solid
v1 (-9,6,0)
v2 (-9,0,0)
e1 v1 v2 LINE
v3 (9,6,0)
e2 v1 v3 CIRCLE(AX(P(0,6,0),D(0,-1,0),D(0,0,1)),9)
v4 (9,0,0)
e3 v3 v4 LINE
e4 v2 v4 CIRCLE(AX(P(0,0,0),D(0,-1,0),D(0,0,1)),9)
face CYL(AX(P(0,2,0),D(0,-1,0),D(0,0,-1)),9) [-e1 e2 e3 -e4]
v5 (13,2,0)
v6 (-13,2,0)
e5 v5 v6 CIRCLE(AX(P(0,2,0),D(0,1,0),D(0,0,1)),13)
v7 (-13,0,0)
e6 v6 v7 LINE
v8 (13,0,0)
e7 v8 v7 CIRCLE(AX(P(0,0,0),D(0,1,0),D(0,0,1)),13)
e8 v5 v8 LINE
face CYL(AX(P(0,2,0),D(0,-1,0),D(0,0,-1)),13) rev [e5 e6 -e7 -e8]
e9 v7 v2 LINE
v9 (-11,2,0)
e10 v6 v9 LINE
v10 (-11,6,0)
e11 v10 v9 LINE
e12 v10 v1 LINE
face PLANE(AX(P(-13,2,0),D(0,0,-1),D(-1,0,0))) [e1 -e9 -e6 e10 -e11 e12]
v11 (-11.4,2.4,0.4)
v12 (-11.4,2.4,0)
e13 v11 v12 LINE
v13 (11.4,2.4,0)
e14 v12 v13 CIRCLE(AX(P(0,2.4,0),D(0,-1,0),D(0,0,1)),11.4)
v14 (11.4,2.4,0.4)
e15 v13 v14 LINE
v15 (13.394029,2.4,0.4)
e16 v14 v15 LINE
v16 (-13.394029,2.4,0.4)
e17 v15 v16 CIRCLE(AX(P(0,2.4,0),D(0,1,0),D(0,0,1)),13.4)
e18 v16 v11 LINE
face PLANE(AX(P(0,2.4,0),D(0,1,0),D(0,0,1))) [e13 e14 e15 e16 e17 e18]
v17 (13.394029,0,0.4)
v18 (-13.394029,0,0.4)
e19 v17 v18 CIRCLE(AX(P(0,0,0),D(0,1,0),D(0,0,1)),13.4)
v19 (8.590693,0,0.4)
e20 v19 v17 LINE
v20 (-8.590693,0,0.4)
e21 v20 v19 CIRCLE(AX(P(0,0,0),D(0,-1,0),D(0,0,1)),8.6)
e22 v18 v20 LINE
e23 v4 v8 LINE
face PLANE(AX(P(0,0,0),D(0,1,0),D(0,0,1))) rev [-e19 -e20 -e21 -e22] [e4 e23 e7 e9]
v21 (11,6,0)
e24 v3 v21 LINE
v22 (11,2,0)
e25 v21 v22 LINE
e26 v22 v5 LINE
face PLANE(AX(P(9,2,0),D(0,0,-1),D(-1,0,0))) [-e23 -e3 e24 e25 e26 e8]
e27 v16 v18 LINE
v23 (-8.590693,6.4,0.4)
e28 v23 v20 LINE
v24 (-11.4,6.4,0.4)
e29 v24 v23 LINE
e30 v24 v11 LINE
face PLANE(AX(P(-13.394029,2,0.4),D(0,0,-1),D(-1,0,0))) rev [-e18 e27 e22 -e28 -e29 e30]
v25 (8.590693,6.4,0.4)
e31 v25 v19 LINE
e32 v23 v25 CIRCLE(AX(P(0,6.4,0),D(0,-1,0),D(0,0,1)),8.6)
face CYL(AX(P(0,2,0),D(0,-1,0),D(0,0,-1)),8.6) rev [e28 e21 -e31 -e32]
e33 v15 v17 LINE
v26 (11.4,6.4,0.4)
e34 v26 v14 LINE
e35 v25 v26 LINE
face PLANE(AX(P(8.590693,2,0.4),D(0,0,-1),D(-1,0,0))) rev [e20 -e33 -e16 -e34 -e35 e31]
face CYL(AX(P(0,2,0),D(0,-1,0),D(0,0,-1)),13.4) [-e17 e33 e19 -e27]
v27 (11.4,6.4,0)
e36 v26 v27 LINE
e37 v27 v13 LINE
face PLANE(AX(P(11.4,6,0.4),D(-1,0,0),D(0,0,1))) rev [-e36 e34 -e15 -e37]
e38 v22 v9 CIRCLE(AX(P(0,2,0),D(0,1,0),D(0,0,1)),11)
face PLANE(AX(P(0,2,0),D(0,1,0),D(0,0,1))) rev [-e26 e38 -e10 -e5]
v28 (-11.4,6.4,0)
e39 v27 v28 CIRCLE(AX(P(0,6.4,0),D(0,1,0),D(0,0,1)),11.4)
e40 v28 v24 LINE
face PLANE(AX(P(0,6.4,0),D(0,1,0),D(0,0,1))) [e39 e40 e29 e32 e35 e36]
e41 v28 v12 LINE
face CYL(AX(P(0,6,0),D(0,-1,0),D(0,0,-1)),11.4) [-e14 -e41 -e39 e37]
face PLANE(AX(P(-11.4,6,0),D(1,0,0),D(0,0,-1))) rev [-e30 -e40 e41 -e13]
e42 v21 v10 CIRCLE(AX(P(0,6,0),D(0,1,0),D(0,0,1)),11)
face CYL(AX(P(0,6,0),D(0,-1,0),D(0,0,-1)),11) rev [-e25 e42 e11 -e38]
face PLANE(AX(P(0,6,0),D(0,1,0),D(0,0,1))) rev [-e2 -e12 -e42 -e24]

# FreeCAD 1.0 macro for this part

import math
import FreeCAD as App
import Part
import Sketcher
from FreeCAD import Vector
Q = App.Units.Quantity

doc = App.newDocument("Part")
params = doc.addObject("Spreadsheet::Sheet", "Params")
for row, (alias, value) in enumerate([
    ("sketch1_radius", "9 mm"),
    ("sketch1_radius2", "13 mm"),
    ("sketch1_radius3", "8.6 mm"),
    ("sketch1_radius4", "13.4 mm"),
    ("pad1_length", "2 mm"),
    ("sketch2_radius", "11 mm"),
    ("sketch2_radius2", "9 mm"),
    ("sketch2_radius3", "8.6 mm"),
    ("sketch2_radius4", "11.4 mm"),
    ("sketch2_height", "0.4 mm"),
    ("pad2_length", "4 mm"),
    ("sketch3_radius", "11.4 mm"),
    ("sketch3_radius2", "13.4 mm"),
    ("sketch3_height", "0.4 mm"),
    ("pad3_length", "0.4 mm"),
    ("sketch4_radius", "11.4 mm"),
    ("sketch4_radius2", "8.6 mm"),
    ("sketch4_height", "0.4 mm"),
    ("pad4_length", "0.4 mm"),
], start=1):
    params.set(f"A{row}", alias)
    params.set(f"B{row}", "=" + value)
    params.setAlias(f"B{row}", alias)

body = doc.addObject("PartDesign::Body", "Body")

sketch1 = body.newObject("Sketcher::SketchObject", "Sketch")
sketch1.AttachmentSupport = (doc.getObject("XZ_Plane"), [""])
sketch1.MapMode = "FlatFace"
sketch1.addGeometry(Part.LineSegment(Vector(-13.4, 0.4, 0), Vector(-8.6, 0.4, 0)), False)
sketch1.addGeometry(Part.ArcOfCircle(Part.Circle(Vector(0, 0, 0), Vector(0, 0, 1), 8.6), math.radians(177), math.radians(363)), False)
sketch1.addGeometry(Part.LineSegment(Vector(8.6, 0.4, 0), Vector(13.4, 0.4, 0)), False)
sketch1.addGeometry(Part.ArcOfCircle(Part.Circle(Vector(0, 0, 0), Vector(0, 0, 1), 13.4), math.radians(178), math.radians(362)), False)
sketch1.addGeometry(Part.LineSegment(Vector(13, 0, 0), Vector(9, 0, 0)), False)
sketch1.addGeometry(Part.ArcOfCircle(Part.Circle(Vector(0, 0, 0), Vector(0, 0, 1), 9), math.radians(180), math.radians(360)), False)
sketch1.addGeometry(Part.LineSegment(Vector(-9, 0, 0), Vector(-13, 0, 0)), False)
sketch1.addGeometry(Part.ArcOfCircle(Part.Circle(Vector(0, 0, 0), Vector(0, 0, 1), 13), math.radians(180), math.radians(360)), False)
sketch1.addConstraint(Sketcher.Constraint("Coincident", 0, 2, 1, 1))
sketch1.addConstraint(Sketcher.Constraint("Coincident", 1, 2, 2, 1))
sketch1.addConstraint(Sketcher.Constraint("Coincident", 2, 2, 3, 2))
sketch1.addConstraint(Sketcher.Constraint("Coincident", 3, 1, 0, 1))
sketch1.addConstraint(Sketcher.Constraint("Coincident", 4, 2, 5, 2))
sketch1.addConstraint(Sketcher.Constraint("Coincident", 5, 1, 6, 1))
sketch1.addConstraint(Sketcher.Constraint("Coincident", 6, 2, 7, 1))
sketch1.addConstraint(Sketcher.Constraint("Coincident", 7, 2, 4, 1))
sketch1.addConstraint(Sketcher.Constraint("Horizontal", 0))
sketch1.addConstraint(Sketcher.Constraint("Horizontal", 2))
sketch1.addConstraint(Sketcher.Constraint("Horizontal", 4))
sketch1.addConstraint(Sketcher.Constraint("Horizontal", 6))
sketch1.addConstraint(Sketcher.Constraint("Coincident", 1, 3, -1, 1))
sketch1.addConstraint(Sketcher.Constraint("Coincident", 3, 3, -1, 1))
sketch1.addConstraint(Sketcher.Constraint("Coincident", 5, 3, -1, 1))
sketch1.addConstraint(Sketcher.Constraint("Coincident", 7, 3, -1, 1))
sketch1.addConstraint(Sketcher.Constraint("PointOnObject", 4, 2, -1))
sketch1.addConstraint(Sketcher.Constraint("PointOnObject", 5, 1, -1))
sketch1.addConstraint(Sketcher.Constraint("Horizontal", 0, 2, 1, 2))
sketch1.addConstraint(Sketcher.Constraint("Radius", 5, Q("9 mm")))
sketch1.addConstraint(Sketcher.Constraint("Radius", 7, Q("13 mm")))
sketch1.addConstraint(Sketcher.Constraint("Radius", 1, Q("8.6 mm")))
sketch1.addConstraint(Sketcher.Constraint("Radius", 3, Q("13.4 mm")))
sketch1.addConstraint(Sketcher.Constraint("DistanceY", -1, 1, 0, 2, Q("0.4 mm")))
sketch1.setExpression("Constraints[19]", "Params.sketch1_radius")
sketch1.setExpression("Constraints[20]", "Params.sketch1_radius2")
sketch1.setExpression("Constraints[21]", "Params.sketch1_radius3")
sketch1.setExpression("Constraints[22]", "Params.sketch1_radius4")
pad1 = body.newObject("PartDesign::Pad", "Pad")
pad1.Profile = sketch1
pad1.setExpression("Length", "Params.pad1_length")
pad1.Reversed = True

sketch2 = body.newObject("Sketcher::SketchObject", "Sketch001")
sketch2.AttachmentSupport = (doc.getObject("XZ_Plane"), [""])
sketch2.MapMode = "FlatFace"
sketch2.AttachmentOffset = App.Placement(Vector(0, 0, -2), App.Rotation())
sketch2.addGeometry(Part.LineSegment(Vector(-11.4, 0, 0), Vector(-11.4, 0.4, 0)), False)
sketch2.addGeometry(Part.LineSegment(Vector(-11.4, 0.4, 0), Vector(-8.59, 0.4, 0)), False)
sketch2.addGeometry(Part.ArcOfCircle(Part.Circle(Vector(0, 0, 0), Vector(0, 0, 1), 8.6), math.radians(177), math.radians(363)), False)
sketch2.addGeometry(Part.LineSegment(Vector(8.59, 0.4, 0), Vector(11.4, 0.4, 0)), False)
sketch2.addGeometry(Part.LineSegment(Vector(11.4, 0.4, 0), Vector(11.4, 0, 0)), False)
sketch2.addGeometry(Part.ArcOfCircle(Part.Circle(Vector(0, 0, 0), Vector(0, 0, 1), 11.4), math.radians(180), math.radians(360)), False)
sketch2.addGeometry(Part.LineSegment(Vector(-9, 0, 0), Vector(-11, 0, 0)), False)
sketch2.addGeometry(Part.ArcOfCircle(Part.Circle(Vector(0, 0, 0), Vector(0, 0, 1), 11), math.radians(180), math.radians(360)), False)
sketch2.addGeometry(Part.LineSegment(Vector(11, 0, 0), Vector(9, 0, 0)), False)
sketch2.addGeometry(Part.ArcOfCircle(Part.Circle(Vector(0, 0, 0), Vector(0, 0, 1), 9), math.radians(180), math.radians(360)), False)
sketch2.addConstraint(Sketcher.Constraint("Coincident", 0, 2, 1, 1))
sketch2.addConstraint(Sketcher.Constraint("Coincident", 1, 2, 2, 1))
sketch2.addConstraint(Sketcher.Constraint("Coincident", 2, 2, 3, 1))
sketch2.addConstraint(Sketcher.Constraint("Coincident", 3, 2, 4, 1))
sketch2.addConstraint(Sketcher.Constraint("Tangent", 4, 2, 5, 2))
sketch2.addConstraint(Sketcher.Constraint("Tangent", 5, 1, 0, 1))
sketch2.addConstraint(Sketcher.Constraint("Coincident", 6, 2, 7, 1))
sketch2.addConstraint(Sketcher.Constraint("Coincident", 7, 2, 8, 1))
sketch2.addConstraint(Sketcher.Constraint("Coincident", 8, 2, 9, 2))
sketch2.addConstraint(Sketcher.Constraint("Coincident", 9, 1, 6, 1))
sketch2.addConstraint(Sketcher.Constraint("Vertical", 0))
sketch2.addConstraint(Sketcher.Constraint("Horizontal", 1))
sketch2.addConstraint(Sketcher.Constraint("Horizontal", 3))
sketch2.addConstraint(Sketcher.Constraint("Vertical", 4))
sketch2.addConstraint(Sketcher.Constraint("Horizontal", 6))
sketch2.addConstraint(Sketcher.Constraint("Horizontal", 8))
sketch2.addConstraint(Sketcher.Constraint("Coincident", 2, 3, -1, 1))
sketch2.addConstraint(Sketcher.Constraint("Coincident", 5, 3, -1, 1))
sketch2.addConstraint(Sketcher.Constraint("Coincident", 7, 3, -1, 1))
sketch2.addConstraint(Sketcher.Constraint("Coincident", 9, 3, -1, 1))
sketch2.addConstraint(Sketcher.Constraint("PointOnObject", 6, 2, -1))
sketch2.addConstraint(Sketcher.Constraint("PointOnObject", 7, 2, -1))
sketch2.addConstraint(Sketcher.Constraint("Horizontal", 1, 2, 2, 2))
sketch2.addConstraint(Sketcher.Constraint("Radius", 7, Q("11 mm")))
sketch2.addConstraint(Sketcher.Constraint("Radius", 9, Q("9 mm")))
sketch2.addConstraint(Sketcher.Constraint("Radius", 2, Q("8.6 mm")))
sketch2.addConstraint(Sketcher.Constraint("Radius", 5, Q("11.4 mm")))
sketch2.addConstraint(Sketcher.Constraint("DistanceY", 0, 1, 0, 2, Q("0.4 mm")))
sketch2.setExpression("Constraints[23]", "Params.sketch2_radius")
sketch2.setExpression("Constraints[24]", "Params.sketch2_radius2")
sketch2.setExpression("Constraints[25]", "Params.sketch2_radius3")
sketch2.setExpression("Constraints[26]", "Params.sketch2_radius4")
sketch2.setExpression("Constraints[27]", "Params.sketch2_height")
pad2 = body.newObject("PartDesign::Pad", "Pad001")
pad2.Profile = sketch2
pad2.setExpression("Length", "Params.pad2_length")
pad2.Reversed = True

sketch3 = body.newObject("Sketcher::SketchObject", "Sketch002")
sketch3.AttachmentSupport = (doc.getObject("XZ_Plane"), [""])
sketch3.MapMode = "FlatFace"
sketch3.AttachmentOffset = App.Placement(Vector(0, 0, -2), App.Rotation())
sketch3.addGeometry(Part.LineSegment(Vector(-13.39, 0.4, 0), Vector(-11.4, 0.4, 0)), False)
sketch3.addGeometry(Part.LineSegment(Vector(-11.4, 0.4, 0), Vector(-11.4, 0, 0)), False)
sketch3.addGeometry(Part.ArcOfCircle(Part.Circle(Vector(0, 0, 0), Vector(0, 0, 1), 11.4), math.radians(180), math.radians(360)), False)
sketch3.addGeometry(Part.LineSegment(Vector(11.4, 0, 0), Vector(11.4, 0.4, 0)), False)
sketch3.addGeometry(Part.LineSegment(Vector(11.4, 0.4, 0), Vector(13.39, 0.4, 0)), False)
sketch3.addGeometry(Part.ArcOfCircle(Part.Circle(Vector(0, 0, 0), Vector(0, 0, 1), 13.4), math.radians(178), math.radians(362)), False)
sketch3.addConstraint(Sketcher.Constraint("Coincident", 0, 2, 1, 1))
sketch3.addConstraint(Sketcher.Constraint("Tangent", 1, 2, 2, 1))
sketch3.addConstraint(Sketcher.Constraint("Tangent", 2, 2, 3, 1))
sketch3.addConstraint(Sketcher.Constraint("Coincident", 3, 2, 4, 1))
sketch3.addConstraint(Sketcher.Constraint("Coincident", 4, 2, 5, 2))
sketch3.addConstraint(Sketcher.Constraint("Coincident", 5, 1, 0, 1))
sketch3.addConstraint(Sketcher.Constraint("Horizontal", 0))
sketch3.addConstraint(Sketcher.Constraint("Vertical", 1))
sketch3.addConstraint(Sketcher.Constraint("Vertical", 3))
sketch3.addConstraint(Sketcher.Constraint("Horizontal", 4))
sketch3.addConstraint(Sketcher.Constraint("Coincident", 2, 3, -1, 1))
sketch3.addConstraint(Sketcher.Constraint("Coincident", 5, 3, -1, 1))
sketch3.addConstraint(Sketcher.Constraint("Horizontal", 0, 2, 3, 2))
sketch3.addConstraint(Sketcher.Constraint("Radius", 2, Q("11.4 mm")))
sketch3.addConstraint(Sketcher.Constraint("Radius", 5, Q("13.4 mm")))
sketch3.addConstraint(Sketcher.Constraint("DistanceY", 1, 2, 1, 1, Q("0.4 mm")))
sketch3.setExpression("Constraints[13]", "Params.sketch3_radius")
sketch3.setExpression("Constraints[14]", "Params.sketch3_radius2")
sketch3.setExpression("Constraints[15]", "Params.sketch3_height")
pad3 = body.newObject("PartDesign::Pad", "Pad002")
pad3.Profile = sketch3
pad3.setExpression("Length", "Params.pad3_length")
pad3.Reversed = True

sketch4 = body.newObject("Sketcher::SketchObject", "Sketch003")
sketch4.AttachmentSupport = (doc.getObject("XZ_Plane"), [""])
sketch4.MapMode = "FlatFace"
sketch4.AttachmentOffset = App.Placement(Vector(0, 0, -6), App.Rotation())
sketch4.addGeometry(Part.LineSegment(Vector(11.4, 0.4, 0), Vector(11.4, 0, 0)), False)
sketch4.addGeometry(Part.ArcOfCircle(Part.Circle(Vector(0, 0, 0), Vector(0, 0, 1), 11.4), math.radians(180), math.radians(360)), False)
sketch4.addGeometry(Part.LineSegment(Vector(-11.4, 0, 0), Vector(-11.4, 0.4, 0)), False)
sketch4.addGeometry(Part.LineSegment(Vector(-11.4, 0.4, 0), Vector(-8.59, 0.4, 0)), False)
sketch4.addGeometry(Part.ArcOfCircle(Part.Circle(Vector(0, 0, 0), Vector(0, 0, 1), 8.6), math.radians(177), math.radians(363)), False)
sketch4.addGeometry(Part.LineSegment(Vector(8.59, 0.4, 0), Vector(11.4, 0.4, 0)), False)
sketch4.addConstraint(Sketcher.Constraint("Tangent", 0, 2, 1, 2))
sketch4.addConstraint(Sketcher.Constraint("Tangent", 1, 1, 2, 1))
sketch4.addConstraint(Sketcher.Constraint("Coincident", 2, 2, 3, 1))
sketch4.addConstraint(Sketcher.Constraint("Coincident", 3, 2, 4, 1))
sketch4.addConstraint(Sketcher.Constraint("Coincident", 4, 2, 5, 1))
sketch4.addConstraint(Sketcher.Constraint("Coincident", 5, 2, 0, 1))
sketch4.addConstraint(Sketcher.Constraint("Vertical", 0))
sketch4.addConstraint(Sketcher.Constraint("Vertical", 2))
sketch4.addConstraint(Sketcher.Constraint("Horizontal", 3))
sketch4.addConstraint(Sketcher.Constraint("Horizontal", 5))
sketch4.addConstraint(Sketcher.Constraint("Coincident", 1, 3, -1, 1))
sketch4.addConstraint(Sketcher.Constraint("Coincident", 4, 3, -1, 1))
sketch4.addConstraint(Sketcher.Constraint("Horizontal", 3, 2, 4, 2))
sketch4.addConstraint(Sketcher.Constraint("Radius", 1, Q("11.4 mm")))
sketch4.addConstraint(Sketcher.Constraint("Radius", 4, Q("8.6 mm")))
sketch4.addConstraint(Sketcher.Constraint("DistanceY", 0, 2, 0, 1, Q("0.4 mm")))
sketch4.setExpression("Constraints[13]", "Params.sketch4_radius")
sketch4.setExpression("Constraints[14]", "Params.sketch4_radius2")
sketch4.setExpression("Constraints[15]", "Params.sketch4_height")
pad4 = body.newObject("PartDesign::Pad", "Pad003")
pad4.Profile = sketch4
pad4.setExpression("Length", "Params.pad4_length")
pad4.Reversed = True

doc.recompute()
